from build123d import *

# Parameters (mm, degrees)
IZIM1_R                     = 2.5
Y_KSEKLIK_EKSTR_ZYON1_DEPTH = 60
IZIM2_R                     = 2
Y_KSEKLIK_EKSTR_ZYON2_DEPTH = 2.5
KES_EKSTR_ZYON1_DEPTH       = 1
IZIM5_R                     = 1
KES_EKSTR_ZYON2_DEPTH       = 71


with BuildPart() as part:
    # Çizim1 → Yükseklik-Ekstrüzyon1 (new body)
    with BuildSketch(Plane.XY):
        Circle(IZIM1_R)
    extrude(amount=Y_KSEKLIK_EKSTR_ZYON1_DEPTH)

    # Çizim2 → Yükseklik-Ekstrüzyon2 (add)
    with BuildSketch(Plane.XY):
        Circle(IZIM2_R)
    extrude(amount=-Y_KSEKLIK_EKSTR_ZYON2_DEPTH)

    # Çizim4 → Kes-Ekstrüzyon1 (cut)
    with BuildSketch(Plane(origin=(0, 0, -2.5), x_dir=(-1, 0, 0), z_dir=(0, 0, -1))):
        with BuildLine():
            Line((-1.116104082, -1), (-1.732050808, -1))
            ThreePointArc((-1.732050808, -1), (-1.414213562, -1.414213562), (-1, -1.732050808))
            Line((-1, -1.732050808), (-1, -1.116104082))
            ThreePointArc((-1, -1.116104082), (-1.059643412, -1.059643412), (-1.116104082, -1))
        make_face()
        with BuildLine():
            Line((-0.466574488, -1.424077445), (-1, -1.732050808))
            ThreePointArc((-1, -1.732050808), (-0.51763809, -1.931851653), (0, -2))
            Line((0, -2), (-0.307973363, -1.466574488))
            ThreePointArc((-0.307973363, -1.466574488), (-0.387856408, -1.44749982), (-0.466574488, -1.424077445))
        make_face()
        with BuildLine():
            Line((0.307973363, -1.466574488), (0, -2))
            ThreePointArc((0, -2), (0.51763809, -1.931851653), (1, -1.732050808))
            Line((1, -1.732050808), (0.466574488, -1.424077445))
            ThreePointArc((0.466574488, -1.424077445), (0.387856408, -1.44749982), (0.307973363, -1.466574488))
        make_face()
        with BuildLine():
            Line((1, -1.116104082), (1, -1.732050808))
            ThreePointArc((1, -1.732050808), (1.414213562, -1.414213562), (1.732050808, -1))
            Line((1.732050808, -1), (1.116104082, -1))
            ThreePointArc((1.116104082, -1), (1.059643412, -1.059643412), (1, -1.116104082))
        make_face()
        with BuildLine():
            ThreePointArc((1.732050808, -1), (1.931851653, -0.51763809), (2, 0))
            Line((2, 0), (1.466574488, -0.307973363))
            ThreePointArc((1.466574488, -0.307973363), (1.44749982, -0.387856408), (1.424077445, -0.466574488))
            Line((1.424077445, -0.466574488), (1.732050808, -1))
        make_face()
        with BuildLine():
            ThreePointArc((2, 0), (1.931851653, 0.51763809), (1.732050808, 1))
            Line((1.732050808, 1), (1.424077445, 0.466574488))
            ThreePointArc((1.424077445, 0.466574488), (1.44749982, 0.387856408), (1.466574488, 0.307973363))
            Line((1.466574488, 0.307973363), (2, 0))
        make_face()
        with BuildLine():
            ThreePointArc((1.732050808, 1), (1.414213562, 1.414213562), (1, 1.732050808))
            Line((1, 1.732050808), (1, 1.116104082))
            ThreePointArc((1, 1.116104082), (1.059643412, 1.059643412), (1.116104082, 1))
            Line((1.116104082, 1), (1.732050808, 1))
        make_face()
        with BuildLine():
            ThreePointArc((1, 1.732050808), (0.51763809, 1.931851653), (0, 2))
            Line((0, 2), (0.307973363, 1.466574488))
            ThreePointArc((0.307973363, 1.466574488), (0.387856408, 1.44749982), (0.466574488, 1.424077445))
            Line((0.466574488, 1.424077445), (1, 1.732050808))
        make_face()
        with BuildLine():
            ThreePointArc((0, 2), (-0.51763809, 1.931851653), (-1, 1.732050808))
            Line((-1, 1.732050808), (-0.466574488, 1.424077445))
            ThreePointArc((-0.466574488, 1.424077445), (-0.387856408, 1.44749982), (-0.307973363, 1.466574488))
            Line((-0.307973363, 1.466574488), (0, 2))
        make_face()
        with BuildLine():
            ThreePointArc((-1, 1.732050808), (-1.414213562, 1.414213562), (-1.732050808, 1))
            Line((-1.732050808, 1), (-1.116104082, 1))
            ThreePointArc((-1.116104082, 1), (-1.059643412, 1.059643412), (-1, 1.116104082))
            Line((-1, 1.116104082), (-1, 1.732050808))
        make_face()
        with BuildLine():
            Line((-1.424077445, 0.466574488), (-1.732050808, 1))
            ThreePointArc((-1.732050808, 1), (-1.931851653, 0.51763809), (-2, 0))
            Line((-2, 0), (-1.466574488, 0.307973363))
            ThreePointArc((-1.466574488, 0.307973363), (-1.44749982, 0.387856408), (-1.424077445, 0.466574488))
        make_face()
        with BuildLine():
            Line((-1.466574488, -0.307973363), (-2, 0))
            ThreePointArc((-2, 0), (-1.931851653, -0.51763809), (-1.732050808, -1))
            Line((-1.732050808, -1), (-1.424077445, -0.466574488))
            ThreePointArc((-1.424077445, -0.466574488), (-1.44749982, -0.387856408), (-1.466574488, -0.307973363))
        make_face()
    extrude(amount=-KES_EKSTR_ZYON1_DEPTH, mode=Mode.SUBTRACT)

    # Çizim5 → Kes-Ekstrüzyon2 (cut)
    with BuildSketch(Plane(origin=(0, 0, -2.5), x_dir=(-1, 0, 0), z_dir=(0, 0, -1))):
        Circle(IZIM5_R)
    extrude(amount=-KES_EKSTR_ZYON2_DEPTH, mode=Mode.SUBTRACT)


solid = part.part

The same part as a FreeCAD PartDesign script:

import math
import FreeCAD as App
import Part
import Sketcher

V = App.Vector
Q = App.Units.Quantity

doc = App.newDocument("Part")
body = doc.addObject("PartDesign::Body", "Body")

# Sketch on XY plane
sketch1 = doc.addObject("Sketcher::SketchObject", "Sketch")
body.addObject(sketch1)
sketch1.AttachmentSupport = (doc.XY_Plane, [""])
sketch1.MapMode = "FlatFace"
sketch1.addGeometry(Part.Circle(V(0, 0, 0), V(0, 0, 1), 2.5), False)
sketch1.addConstraint([
    Sketcher.Constraint("Coincident", 0, 3, -1, 1),
    Sketcher.Constraint("Diameter", 0, Q("5 mm")),
])
pad1 = doc.addObject("PartDesign::Pad", "Pad")
body.addObject(pad1)
pad1.Profile = sketch1
pad1.Length = 60

# Sketch on XY plane
sketch2 = doc.addObject("Sketcher::SketchObject", "Sketch001")
body.addObject(sketch2)
sketch2.AttachmentSupport = (doc.XY_Plane, [""])
sketch2.MapMode = "FlatFace"
sketch2.addGeometry(Part.Circle(V(0, 0, 0), V(0, 0, 1), 2), False)
sketch2.addConstraint([
    Sketcher.Constraint("Coincident", 0, 3, -1, 1),
    Sketcher.Constraint("Diameter", 0, Q("4 mm")),
])
pad2 = doc.addObject("PartDesign::Pad", "Pad001")
body.addObject(pad2)
pad2.Profile = sketch2
pad2.Length = 2.5
pad2.Reversed = True

# Sketch on XY plane
sketch3 = doc.addObject("Sketcher::SketchObject", "Sketch002")
body.addObject(sketch3)
sketch3.AttachmentSupport = (doc.XY_Plane, [""])
sketch3.MapMode = "FlatFace"
sketch3.AttachmentOffset = App.Placement(V(0, 0, -2.5), App.Rotation())
sketch3.addGeometry([
    Part.LineSegment(V(1.12, -1, 0), V(1.73, -1, 0)),  # 0
    Part.ArcOfCircle(Part.Circle(V(0, 0, 0), V(0, 0, 1), 2), math.radians(-60), math.radians(-30)),  # 1
    Part.LineSegment(V(1, -1.73, 0), V(1, -1.12, 0)),  # 2
    Part.ArcOfCircle(Part.Circle(V(0, 0, 0), V(0, 0, 1), 1.5), math.radians(-48.14), math.radians(-41.86)),  # 3
    Part.LineSegment(V(0.47, -1.42, 0), V(1, -1.73, 0)),  # 4
    Part.ArcOfCircle(Part.Circle(V(0, 0, 0), V(0, 0, 1), 2), math.radians(-90), math.radians(-60)),  # 5
    Part.LineSegment(V(0, -2, 0), V(0.31, -1.47, 0)),  # 6
    Part.ArcOfCircle(Part.Circle(V(0, 0, 0), V(0, 0, 1), 1.5), math.radians(-78.14), math.radians(-71.86)),  # 7
    Part.LineSegment(V(-0.31, -1.47, 0), V(0, -2, 0)),  # 8
    Part.ArcOfCircle(Part.Circle(V(0, 0, 0), V(0, 0, 1), 2), math.radians(-120), math.radians(-90)),  # 9
    Part.LineSegment(V(-1, -1.73, 0), V(-0.47, -1.42, 0)),  # 10
    Part.ArcOfCircle(Part.Circle(V(0, 0, 0), V(0, 0, 1), 1.5), math.radians(-108.14), math.radians(-101.86)),  # 11
    Part.LineSegment(V(-1, -1.12, 0), V(-1, -1.73, 0)),  # 12
    Part.ArcOfCircle(Part.Circle(V(0, 0, 0), V(0, 0, 1), 2), math.radians(-150), math.radians(-120)),  # 13
    Part.LineSegment(V(-1.73, -1, 0), V(-1.12, -1, 0)),  # 14
    Part.ArcOfCircle(Part.Circle(V(0, 0, 0), V(0, 0, 1), 1.5), math.radians(-138.14), math.radians(-131.86)),  # 15
    Part.ArcOfCircle(Part.Circle(V(0, 0, 0), V(0, 0, 1), 2), math.radians(180), math.radians(210)),  # 16
    Part.LineSegment(V(-2, 0, 0), V(-1.47, -0.31, 0)),  # 17
    Part.ArcOfCircle(Part.Circle(V(0, 0, 0), V(0, 0, 1), 1.5), math.radians(-168.14), math.radians(-161.86)),  # 18
    Part.LineSegment(V(-1.42, -0.47, 0), V(-1.73, -1, 0)),  # 19
    Part.ArcOfCircle(Part.Circle(V(0, 0, 0), V(0, 0, 1), 2), math.radians(150), math.radians(180)),  # 20
    Part.LineSegment(V(-1.73, 1, 0), V(-1.42, 0.47, 0)),  # 21
    Part.ArcOfCircle(Part.Circle(V(0, 0, 0), V(0, 0, 1), 1.5), math.radians(161.86), math.radians(168.14)),  # 22
    Part.LineSegment(V(-1.47, 0.31, 0), V(-2, 0, 0)),  # 23
    Part.ArcOfCircle(Part.Circle(V(0, 0, 0), V(0, 0, 1), 2), math.radians(120), math.radians(150)),  # 24
    Part.LineSegment(V(-1, 1.73, 0), V(-1, 1.12, 0)),  # 25
    Part.ArcOfCircle(Part.Circle(V(0, 0, 0), V(0, 0, 1), 1.5), math.radians(131.86), math.radians(138.14)),  # 26
    Part.LineSegment(V(-1.12, 1, 0), V(-1.73, 1, 0)),  # 27
    Part.ArcOfCircle(Part.Circle(V(0, 0, 0), V(0, 0, 1), 2), math.radians(90), math.radians(120)),  # 28
    Part.LineSegment(V(0, 2, 0), V(-0.31, 1.47, 0)),  # 29
    Part.ArcOfCircle(Part.Circle(V(0, 0, 0), V(0, 0, 1), 1.5), math.radians(101.86), math.radians(108.14)),  # 30
    Part.LineSegment(V(-0.47, 1.42, 0), V(-1, 1.73, 0)),  # 31
    Part.ArcOfCircle(Part.Circle(V(0, 0, 0), V(0, 0, 1), 2), math.radians(60), math.radians(90)),  # 32
    Part.LineSegment(V(1, 1.73, 0), V(0.47, 1.42, 0)),  # 33
    Part.ArcOfCircle(Part.Circle(V(0, 0, 0), V(0, 0, 1), 1.5), math.radians(71.86), math.radians(78.14)),  # 34
    Part.LineSegment(V(0.31, 1.47, 0), V(0, 2, 0)),  # 35
    Part.ArcOfCircle(Part.Circle(V(0, 0, 0), V(0, 0, 1), 2), math.radians(30), math.radians(60)),  # 36
    Part.LineSegment(V(1.73, 1, 0), V(1.12, 1, 0)),  # 37
    Part.ArcOfCircle(Part.Circle(V(0, 0, 0), V(0, 0, 1), 1.5), math.radians(41.86), math.radians(48.14)),  # 38
    Part.LineSegment(V(1, 1.12, 0), V(1, 1.73, 0)),  # 39
    Part.LineSegment(V(1.42, 0.47, 0), V(1.73, 1, 0)),  # 40
    Part.ArcOfCircle(Part.Circle(V(0, 0, 0), V(0, 0, 1), 2), math.radians(0), math.radians(30)),  # 41
    Part.LineSegment(V(2, 0, 0), V(1.47, 0.31, 0)),  # 42
    Part.ArcOfCircle(Part.Circle(V(0, 0, 0), V(0, 0, 1), 1.5), math.radians(11.86), math.radians(18.14)),  # 43
    Part.LineSegment(V(1.47, -0.31, 0), V(2, 0, 0)),  # 44
    Part.ArcOfCircle(Part.Circle(V(0, 0, 0), V(0, 0, 1), 2), math.radians(-30), math.radians(0)),  # 45
    Part.LineSegment(V(1.73, -1, 0), V(1.42, -0.47, 0)),  # 46
    Part.ArcOfCircle(Part.Circle(V(0, 0, 0), V(0, 0, 1), 1.5), math.radians(-18.14), math.radians(-11.86)),  # 47
], False)
sketch3.addConstraint([
    Sketcher.Constraint("Coincident", 0, 2, 1, 2),
    Sketcher.Constraint("Coincident", 1, 1, 2, 1),
    Sketcher.Constraint("Coincident", 2, 2, 3, 1),
    Sketcher.Constraint("Coincident", 3, 2, 0, 1),
    Sketcher.Constraint("Coincident", 4, 2, 5, 2),
    Sketcher.Constraint("Coincident", 5, 1, 6, 1),
    Sketcher.Constraint("Coincident", 6, 2, 7, 1),
    Sketcher.Constraint("Coincident", 7, 2, 4, 1),
    Sketcher.Constraint("Coincident", 8, 2, 9, 2),
    Sketcher.Constraint("Coincident", 9, 1, 10, 1),
    Sketcher.Constraint("Coincident", 10, 2, 11, 1),
    Sketcher.Constraint("Coincident", 11, 2, 8, 1),
    Sketcher.Constraint("Coincident", 12, 2, 13, 2),
    Sketcher.Constraint("Coincident", 13, 1, 14, 1),
    Sketcher.Constraint("Coincident", 14, 2, 15, 1),
    Sketcher.Constraint("Coincident", 15, 2, 12, 1),
    Sketcher.Constraint("Coincident", 16, 1, 17, 1),
    Sketcher.Constraint("Coincident", 17, 2, 18, 1),
    Sketcher.Constraint("Coincident", 18, 2, 19, 1),
    Sketcher.Constraint("Coincident", 19, 2, 16, 2),
    Sketcher.Constraint("Coincident", 20, 1, 21, 1),
    Sketcher.Constraint("Coincident", 21, 2, 22, 1),
    Sketcher.Constraint("Coincident", 22, 2, 23, 1),
    Sketcher.Constraint("Coincident", 23, 2, 20, 2),
    Sketcher.Constraint("Coincident", 24, 1, 25, 1),
    Sketcher.Constraint("Coincident", 25, 2, 26, 1),
    Sketcher.Constraint("Coincident", 26, 2, 27, 1),
    Sketcher.Constraint("Coincident", 27, 2, 24, 2),
    Sketcher.Constraint("Coincident", 28, 1, 29, 1),
    Sketcher.Constraint("Coincident", 29, 2, 30, 1),
    Sketcher.Constraint("Coincident", 30, 2, 31, 1),
    Sketcher.Constraint("Coincident", 31, 2, 28, 2),
    Sketcher.Constraint("Coincident", 32, 1, 33, 1),
    Sketcher.Constraint("Coincident", 33, 2, 34, 1),
    Sketcher.Constraint("Coincident", 34, 2, 35, 1),
    Sketcher.Constraint("Coincident", 35, 2, 32, 2),
    Sketcher.Constraint("Coincident", 36, 1, 37, 1),
    Sketcher.Constraint("Coincident", 37, 2, 38, 1),
    Sketcher.Constraint("Coincident", 38, 2, 39, 1),
    Sketcher.Constraint("Coincident", 39, 2, 36, 2),
    Sketcher.Constraint("Coincident", 40, 2, 41, 2),
    Sketcher.Constraint("Coincident", 41, 1, 42, 1),
    Sketcher.Constraint("Coincident", 42, 2, 43, 1),
    Sketcher.Constraint("Coincident", 43, 2, 40, 1),
    Sketcher.Constraint("Coincident", 44, 2, 45, 2),
    Sketcher.Constraint("Coincident", 45, 1, 46, 1),
    Sketcher.Constraint("Coincident", 46, 2, 47, 1),
    Sketcher.Constraint("Coincident", 47, 2, 44, 1),
    Sketcher.Constraint("Horizontal", 0),
    Sketcher.Constraint("Vertical", 2),
    Sketcher.Constraint("Vertical", 12),
    Sketcher.Constraint("Horizontal", 14),
    Sketcher.Constraint("Vertical", 25),
    Sketcher.Constraint("Horizontal", 27),
    Sketcher.Constraint("Horizontal", 37),
    Sketcher.Constraint("Vertical", 39),
    Sketcher.Constraint("Coincident", 1, 3, -1, 1),
    Sketcher.Constraint("Coincident", 3, 3, -1, 1),
    Sketcher.Constraint("Coincident", 5, 3, -1, 1),
    Sketcher.Constraint("Coincident", 7, 3, -1, 1),
    Sketcher.Constraint("Coincident", 9, 3, -1, 1),
    Sketcher.Constraint("Coincident", 11, 3, -1, 1),
    Sketcher.Constraint("Coincident", 13, 3, -1, 1),
    Sketcher.Constraint("Coincident", 15, 3, -1, 1),
    Sketcher.Constraint("Coincident", 16, 3, -1, 1),
    Sketcher.Constraint("Coincident", 18, 3, -1, 1),
    Sketcher.Constraint("Coincident", 20, 3, -1, 1),
    Sketcher.Constraint("Coincident", 22, 3, -1, 1),
    Sketcher.Constraint("Coincident", 24, 3, -1, 1),
    Sketcher.Constraint("Coincident", 26, 3, -1, 1),
    Sketcher.Constraint("Coincident", 28, 3, -1, 1),
    Sketcher.Constraint("Coincident", 30, 3, -1, 1),
    Sketcher.Constraint("Coincident", 32, 3, -1, 1),
    Sketcher.Constraint("Coincident", 34, 3, -1, 1),
    Sketcher.Constraint("Coincident", 36, 3, -1, 1),
    Sketcher.Constraint("Coincident", 38, 3, -1, 1),
    Sketcher.Constraint("Coincident", 41, 3, -1, 1),
    Sketcher.Constraint("Coincident", 43, 3, -1, 1),
    Sketcher.Constraint("Coincident", 45, 3, -1, 1),
    Sketcher.Constraint("Coincident", 47, 3, -1, 1),
    Sketcher.Constraint("Coincident", 4, 2, 1, 1),
    Sketcher.Constraint("Coincident", 8, 2, 5, 1),
    Sketcher.Constraint("Coincident", 12, 2, 9, 1),
    Sketcher.Constraint("Coincident", 19, 2, 13, 1),
    Sketcher.Constraint("Coincident", 23, 2, 16, 1),
    Sketcher.Constraint("Coincident", 27, 2, 20, 1),
    Sketcher.Constraint("Coincident", 31, 2, 24, 1),
    Sketcher.Constraint("Coincident", 35, 2, 28, 1),
    Sketcher.Constraint("Coincident", 39, 2, 32, 1),
    Sketcher.Constraint("Coincident", 40, 2, 36, 1),
    Sketcher.Constraint("Coincident", 44, 2, 41, 1),
    Sketcher.Constraint("Equal", 3, 7),
    Sketcher.Constraint("Equal", 7, 11),
    Sketcher.Constraint("Equal", 11, 15),
    Sketcher.Constraint("Equal", 15, 18),
    Sketcher.Constraint("Equal", 18, 22),
    Sketcher.Constraint("Equal", 22, 26),
    Sketcher.Constraint("Equal", 26, 30),
    Sketcher.Constraint("Equal", 30, 34),
    Sketcher.Constraint("Equal", 34, 38),
    Sketcher.Constraint("Equal", 38, 43),
    Sketcher.Constraint("Equal", 43, 47),
    Sketcher.Constraint("PointOnObject", 5, 1, -2),
    Sketcher.Constraint("PointOnObject", 16, 1, -1),
    Sketcher.Constraint("PointOnObject", 28, 1, -2),
    Sketcher.Constraint("PointOnObject", 41, 1, -1),
    Sketcher.Constraint("Perpendicular", 4, 6),
    Sketcher.Constraint("Perpendicular", 8, 10),
    Sketcher.Constraint("Perpendicular", 6, 17),
    Sketcher.Constraint("Perpendicular", 17, 19),
    Sketcher.Constraint("Perpendicular", 10, 21),
    Sketcher.Constraint("Perpendicular", 21, 23),
    Sketcher.Constraint("Parallel", 19, 29),
    Sketcher.Constraint("Perpendicular", 29, 31),
    Sketcher.Constraint("Parallel", 23, 33),
    Sketcher.Constraint("Perpendicular", 33, 35),
    Sketcher.Constraint("Perpendicular", 31, 40),
    Sketcher.Constraint("Perpendicular", 40, 42),
    Sketcher.Constraint("Perpendicular", 35, 44),
    Sketcher.Constraint("Perpendicular", 44, 46),
    Sketcher.Constraint("Horizontal", 4, 2, 9, 1),
    Sketcher.Constraint("Horizontal", 7, 2, 10, 2),
    Sketcher.Constraint("Horizontal", 3, 2, 13, 1),
    Sketcher.Constraint("Horizontal", 31, 2, 32, 1),
    Sketcher.Constraint("Horizontal", 27, 2, 36, 1),
    Sketcher.Constraint("Horizontal", 19, 2, 45, 1),
    Sketcher.Constraint("Vertical", 19, 2, 20, 1),
    Sketcher.Constraint("Vertical", 15, 2, 24, 1),
    Sketcher.Constraint("Equal", 37, 2),
    Sketcher.Constraint("Equal", 4, 6),
    Sketcher.Constraint("Radius", 1, Q("2 mm")),
    Sketcher.Constraint("Angle", 4, Q("-30 deg")),
    Sketcher.Constraint("Radius", 7, Q("1.498562 mm")),
])
pocket1 = doc.addObject("PartDesign::Pocket", "Pocket")
body.addObject(pocket1)
pocket1.Profile = sketch3
pocket1.Length = 1
pocket1.Reversed = True

# Sketch on XY plane
sketch4 = doc.addObject("Sketcher::SketchObject", "Sketch003")
body.addObject(sketch4)
sketch4.AttachmentSupport = (doc.XY_Plane, [""])
sketch4.MapMode = "FlatFace"
sketch4.AttachmentOffset = App.Placement(V(0, 0, -2.5), App.Rotation())
sketch4.addGeometry(Part.Circle(V(0, 0, 0), V(0, 0, 1), 1), False)
sketch4.addConstraint([
    Sketcher.Constraint("Coincident", 0, 3, -1, 1),
    Sketcher.Constraint("Diameter", 0, Q("2 mm")),
])
pocket2 = doc.addObject("PartDesign::Pocket", "Pocket001")
body.addObject(pocket2)
pocket2.Profile = sketch4
pocket2.Length = 71
pocket2.Reversed = True

doc.recompute()
